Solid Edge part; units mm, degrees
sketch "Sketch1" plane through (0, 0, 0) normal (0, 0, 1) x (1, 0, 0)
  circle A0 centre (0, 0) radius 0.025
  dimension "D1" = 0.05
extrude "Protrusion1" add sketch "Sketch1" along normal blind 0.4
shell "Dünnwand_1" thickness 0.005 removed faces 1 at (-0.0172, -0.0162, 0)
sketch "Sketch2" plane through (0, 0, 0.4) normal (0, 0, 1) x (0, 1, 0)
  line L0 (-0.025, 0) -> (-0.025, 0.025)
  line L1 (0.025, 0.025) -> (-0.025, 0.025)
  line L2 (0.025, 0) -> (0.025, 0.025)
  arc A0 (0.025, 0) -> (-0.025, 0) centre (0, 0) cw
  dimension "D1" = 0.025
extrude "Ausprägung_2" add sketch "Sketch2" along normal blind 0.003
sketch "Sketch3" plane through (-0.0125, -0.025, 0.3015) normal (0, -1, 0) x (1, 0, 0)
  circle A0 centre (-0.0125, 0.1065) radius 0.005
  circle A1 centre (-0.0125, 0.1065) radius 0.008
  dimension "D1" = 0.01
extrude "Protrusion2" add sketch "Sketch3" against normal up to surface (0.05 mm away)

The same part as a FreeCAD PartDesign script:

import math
import FreeCAD as App
import Part
import Sketcher

V = App.Vector
Q = App.Units.Quantity


def faces_at(feature, points):
    """Names of the faces that lie closest to the given points."""
    faces = feature.Shape.Faces
    near = lambda p: min(range(len(faces)), key=lambda i: faces[i].distToShape(Part.Vertex(*p))[0])
    return sorted({f"Face{near(p) + 1}" for p in points})

doc = App.newDocument("Part")
body = doc.addObject("PartDesign::Body", "Body")

sketch1 = body.newObject("Sketcher::SketchObject", "Sketch")
sketch1.AttachmentSupport = (doc.getObject("XY_Plane"), [""])
sketch1.MapMode = "FlatFace"
sketch1.addGeometry(Part.Circle(V(0, 0, 0), V(0, 0, 1), 0.025), False)
sketch1.addConstraint([
    Sketcher.Constraint("Coincident", 0, 3, -1, 1),
    Sketcher.Constraint("Diameter", 0, Q("0.05 mm")),
])
pad1 = body.newObject("PartDesign::Pad", "Pad")
pad1.Profile = sketch1
pad1.Length = 0.4
doc.recompute()

thickness = body.newObject("PartDesign::Thickness", "Thickness")
thickness.Base = (pad1, faces_at(pad1, [(-0.017, -0.016, 0)]))
thickness.Value = 0.005
thickness.Reversed = True
thickness.Join = "Intersection"

sketch2 = body.newObject("Sketcher::SketchObject", "Sketch001")
sketch2.AttachmentSupport = (doc.getObject("XY_Plane"), [""])
sketch2.MapMode = "FlatFace"
sketch2.AttachmentOffset = App.Placement(V(0, 0, 0.4), App.Rotation())
sketch2.addGeometry([
    Part.LineSegment(V(-0.025, -0.025, 0), V(0, -0.025, 0)),
    Part.ArcOfCircle(Part.Circle(V(0, 0, 0), V(0, 0, 1), 0.025), math.radians(-90), math.radians(90)),
    Part.LineSegment(V(0, 0.025, 0), V(-0.025, 0.025, 0)),
    Part.LineSegment(V(-0.025, 0.025, 0), V(-0.025, -0.025, 0)),
], False)
sketch2.addConstraint([
    Sketcher.Constraint("Tangent", 0, 2, 1, 1),
    Sketcher.Constraint("Tangent", 1, 2, 2, 1),
    Sketcher.Constraint("Coincident", 2, 2, 3, 1),
    Sketcher.Constraint("Coincident", 3, 2, 0, 1),
    Sketcher.Constraint("Horizontal", 0),
    Sketcher.Constraint("Horizontal", 2),
    Sketcher.Constraint("Vertical", 3),
    Sketcher.Constraint("Coincident", 1, 3, -1, 1),
    Sketcher.Constraint("Radius", 1, Q("0.025 mm")),
    Sketcher.Constraint("DistanceX", 0, 1, 0, 2, Q("0.025 mm")),
])
pad2 = body.newObject("PartDesign::Pad", "Pad001")
pad2.Profile = sketch2
pad2.Length = 0.003

sketch3 = body.newObject("Sketcher::SketchObject", "Sketch002")
sketch3.AttachmentSupport = (doc.getObject("XZ_Plane"), [""])
sketch3.MapMode = "FlatFace"
sketch3.AttachmentOffset = App.Placement(V(0, 0, 0.025), App.Rotation())
sketch3.addGeometry([
    Part.Circle(V(-0.025, 0.408, 0), V(0, 0, 1), 0.008),
    Part.Circle(V(-0.025, 0.408, 0), V(0, 0, 1), 0.005),
], False)
sketch3.addConstraint([
    Sketcher.Constraint("Coincident", 1, 3, 0, 3),
    Sketcher.Constraint("Diameter", 1, Q("0.01 mm")),
    Sketcher.Constraint("Diameter", 0, Q("0.016 mm")),
    Sketcher.Constraint("DistanceX", 0, 3, -1, 1, Q("0.025 mm")),
    Sketcher.Constraint("DistanceY", -1, 1, 0, 3, Q("0.408 mm")),
])
pad3 = body.newObject("PartDesign::Pad", "Pad002")
pad3.Profile = sketch3
pad3.Length = 0.05
pad3.Reversed = True

doc.recompute()
